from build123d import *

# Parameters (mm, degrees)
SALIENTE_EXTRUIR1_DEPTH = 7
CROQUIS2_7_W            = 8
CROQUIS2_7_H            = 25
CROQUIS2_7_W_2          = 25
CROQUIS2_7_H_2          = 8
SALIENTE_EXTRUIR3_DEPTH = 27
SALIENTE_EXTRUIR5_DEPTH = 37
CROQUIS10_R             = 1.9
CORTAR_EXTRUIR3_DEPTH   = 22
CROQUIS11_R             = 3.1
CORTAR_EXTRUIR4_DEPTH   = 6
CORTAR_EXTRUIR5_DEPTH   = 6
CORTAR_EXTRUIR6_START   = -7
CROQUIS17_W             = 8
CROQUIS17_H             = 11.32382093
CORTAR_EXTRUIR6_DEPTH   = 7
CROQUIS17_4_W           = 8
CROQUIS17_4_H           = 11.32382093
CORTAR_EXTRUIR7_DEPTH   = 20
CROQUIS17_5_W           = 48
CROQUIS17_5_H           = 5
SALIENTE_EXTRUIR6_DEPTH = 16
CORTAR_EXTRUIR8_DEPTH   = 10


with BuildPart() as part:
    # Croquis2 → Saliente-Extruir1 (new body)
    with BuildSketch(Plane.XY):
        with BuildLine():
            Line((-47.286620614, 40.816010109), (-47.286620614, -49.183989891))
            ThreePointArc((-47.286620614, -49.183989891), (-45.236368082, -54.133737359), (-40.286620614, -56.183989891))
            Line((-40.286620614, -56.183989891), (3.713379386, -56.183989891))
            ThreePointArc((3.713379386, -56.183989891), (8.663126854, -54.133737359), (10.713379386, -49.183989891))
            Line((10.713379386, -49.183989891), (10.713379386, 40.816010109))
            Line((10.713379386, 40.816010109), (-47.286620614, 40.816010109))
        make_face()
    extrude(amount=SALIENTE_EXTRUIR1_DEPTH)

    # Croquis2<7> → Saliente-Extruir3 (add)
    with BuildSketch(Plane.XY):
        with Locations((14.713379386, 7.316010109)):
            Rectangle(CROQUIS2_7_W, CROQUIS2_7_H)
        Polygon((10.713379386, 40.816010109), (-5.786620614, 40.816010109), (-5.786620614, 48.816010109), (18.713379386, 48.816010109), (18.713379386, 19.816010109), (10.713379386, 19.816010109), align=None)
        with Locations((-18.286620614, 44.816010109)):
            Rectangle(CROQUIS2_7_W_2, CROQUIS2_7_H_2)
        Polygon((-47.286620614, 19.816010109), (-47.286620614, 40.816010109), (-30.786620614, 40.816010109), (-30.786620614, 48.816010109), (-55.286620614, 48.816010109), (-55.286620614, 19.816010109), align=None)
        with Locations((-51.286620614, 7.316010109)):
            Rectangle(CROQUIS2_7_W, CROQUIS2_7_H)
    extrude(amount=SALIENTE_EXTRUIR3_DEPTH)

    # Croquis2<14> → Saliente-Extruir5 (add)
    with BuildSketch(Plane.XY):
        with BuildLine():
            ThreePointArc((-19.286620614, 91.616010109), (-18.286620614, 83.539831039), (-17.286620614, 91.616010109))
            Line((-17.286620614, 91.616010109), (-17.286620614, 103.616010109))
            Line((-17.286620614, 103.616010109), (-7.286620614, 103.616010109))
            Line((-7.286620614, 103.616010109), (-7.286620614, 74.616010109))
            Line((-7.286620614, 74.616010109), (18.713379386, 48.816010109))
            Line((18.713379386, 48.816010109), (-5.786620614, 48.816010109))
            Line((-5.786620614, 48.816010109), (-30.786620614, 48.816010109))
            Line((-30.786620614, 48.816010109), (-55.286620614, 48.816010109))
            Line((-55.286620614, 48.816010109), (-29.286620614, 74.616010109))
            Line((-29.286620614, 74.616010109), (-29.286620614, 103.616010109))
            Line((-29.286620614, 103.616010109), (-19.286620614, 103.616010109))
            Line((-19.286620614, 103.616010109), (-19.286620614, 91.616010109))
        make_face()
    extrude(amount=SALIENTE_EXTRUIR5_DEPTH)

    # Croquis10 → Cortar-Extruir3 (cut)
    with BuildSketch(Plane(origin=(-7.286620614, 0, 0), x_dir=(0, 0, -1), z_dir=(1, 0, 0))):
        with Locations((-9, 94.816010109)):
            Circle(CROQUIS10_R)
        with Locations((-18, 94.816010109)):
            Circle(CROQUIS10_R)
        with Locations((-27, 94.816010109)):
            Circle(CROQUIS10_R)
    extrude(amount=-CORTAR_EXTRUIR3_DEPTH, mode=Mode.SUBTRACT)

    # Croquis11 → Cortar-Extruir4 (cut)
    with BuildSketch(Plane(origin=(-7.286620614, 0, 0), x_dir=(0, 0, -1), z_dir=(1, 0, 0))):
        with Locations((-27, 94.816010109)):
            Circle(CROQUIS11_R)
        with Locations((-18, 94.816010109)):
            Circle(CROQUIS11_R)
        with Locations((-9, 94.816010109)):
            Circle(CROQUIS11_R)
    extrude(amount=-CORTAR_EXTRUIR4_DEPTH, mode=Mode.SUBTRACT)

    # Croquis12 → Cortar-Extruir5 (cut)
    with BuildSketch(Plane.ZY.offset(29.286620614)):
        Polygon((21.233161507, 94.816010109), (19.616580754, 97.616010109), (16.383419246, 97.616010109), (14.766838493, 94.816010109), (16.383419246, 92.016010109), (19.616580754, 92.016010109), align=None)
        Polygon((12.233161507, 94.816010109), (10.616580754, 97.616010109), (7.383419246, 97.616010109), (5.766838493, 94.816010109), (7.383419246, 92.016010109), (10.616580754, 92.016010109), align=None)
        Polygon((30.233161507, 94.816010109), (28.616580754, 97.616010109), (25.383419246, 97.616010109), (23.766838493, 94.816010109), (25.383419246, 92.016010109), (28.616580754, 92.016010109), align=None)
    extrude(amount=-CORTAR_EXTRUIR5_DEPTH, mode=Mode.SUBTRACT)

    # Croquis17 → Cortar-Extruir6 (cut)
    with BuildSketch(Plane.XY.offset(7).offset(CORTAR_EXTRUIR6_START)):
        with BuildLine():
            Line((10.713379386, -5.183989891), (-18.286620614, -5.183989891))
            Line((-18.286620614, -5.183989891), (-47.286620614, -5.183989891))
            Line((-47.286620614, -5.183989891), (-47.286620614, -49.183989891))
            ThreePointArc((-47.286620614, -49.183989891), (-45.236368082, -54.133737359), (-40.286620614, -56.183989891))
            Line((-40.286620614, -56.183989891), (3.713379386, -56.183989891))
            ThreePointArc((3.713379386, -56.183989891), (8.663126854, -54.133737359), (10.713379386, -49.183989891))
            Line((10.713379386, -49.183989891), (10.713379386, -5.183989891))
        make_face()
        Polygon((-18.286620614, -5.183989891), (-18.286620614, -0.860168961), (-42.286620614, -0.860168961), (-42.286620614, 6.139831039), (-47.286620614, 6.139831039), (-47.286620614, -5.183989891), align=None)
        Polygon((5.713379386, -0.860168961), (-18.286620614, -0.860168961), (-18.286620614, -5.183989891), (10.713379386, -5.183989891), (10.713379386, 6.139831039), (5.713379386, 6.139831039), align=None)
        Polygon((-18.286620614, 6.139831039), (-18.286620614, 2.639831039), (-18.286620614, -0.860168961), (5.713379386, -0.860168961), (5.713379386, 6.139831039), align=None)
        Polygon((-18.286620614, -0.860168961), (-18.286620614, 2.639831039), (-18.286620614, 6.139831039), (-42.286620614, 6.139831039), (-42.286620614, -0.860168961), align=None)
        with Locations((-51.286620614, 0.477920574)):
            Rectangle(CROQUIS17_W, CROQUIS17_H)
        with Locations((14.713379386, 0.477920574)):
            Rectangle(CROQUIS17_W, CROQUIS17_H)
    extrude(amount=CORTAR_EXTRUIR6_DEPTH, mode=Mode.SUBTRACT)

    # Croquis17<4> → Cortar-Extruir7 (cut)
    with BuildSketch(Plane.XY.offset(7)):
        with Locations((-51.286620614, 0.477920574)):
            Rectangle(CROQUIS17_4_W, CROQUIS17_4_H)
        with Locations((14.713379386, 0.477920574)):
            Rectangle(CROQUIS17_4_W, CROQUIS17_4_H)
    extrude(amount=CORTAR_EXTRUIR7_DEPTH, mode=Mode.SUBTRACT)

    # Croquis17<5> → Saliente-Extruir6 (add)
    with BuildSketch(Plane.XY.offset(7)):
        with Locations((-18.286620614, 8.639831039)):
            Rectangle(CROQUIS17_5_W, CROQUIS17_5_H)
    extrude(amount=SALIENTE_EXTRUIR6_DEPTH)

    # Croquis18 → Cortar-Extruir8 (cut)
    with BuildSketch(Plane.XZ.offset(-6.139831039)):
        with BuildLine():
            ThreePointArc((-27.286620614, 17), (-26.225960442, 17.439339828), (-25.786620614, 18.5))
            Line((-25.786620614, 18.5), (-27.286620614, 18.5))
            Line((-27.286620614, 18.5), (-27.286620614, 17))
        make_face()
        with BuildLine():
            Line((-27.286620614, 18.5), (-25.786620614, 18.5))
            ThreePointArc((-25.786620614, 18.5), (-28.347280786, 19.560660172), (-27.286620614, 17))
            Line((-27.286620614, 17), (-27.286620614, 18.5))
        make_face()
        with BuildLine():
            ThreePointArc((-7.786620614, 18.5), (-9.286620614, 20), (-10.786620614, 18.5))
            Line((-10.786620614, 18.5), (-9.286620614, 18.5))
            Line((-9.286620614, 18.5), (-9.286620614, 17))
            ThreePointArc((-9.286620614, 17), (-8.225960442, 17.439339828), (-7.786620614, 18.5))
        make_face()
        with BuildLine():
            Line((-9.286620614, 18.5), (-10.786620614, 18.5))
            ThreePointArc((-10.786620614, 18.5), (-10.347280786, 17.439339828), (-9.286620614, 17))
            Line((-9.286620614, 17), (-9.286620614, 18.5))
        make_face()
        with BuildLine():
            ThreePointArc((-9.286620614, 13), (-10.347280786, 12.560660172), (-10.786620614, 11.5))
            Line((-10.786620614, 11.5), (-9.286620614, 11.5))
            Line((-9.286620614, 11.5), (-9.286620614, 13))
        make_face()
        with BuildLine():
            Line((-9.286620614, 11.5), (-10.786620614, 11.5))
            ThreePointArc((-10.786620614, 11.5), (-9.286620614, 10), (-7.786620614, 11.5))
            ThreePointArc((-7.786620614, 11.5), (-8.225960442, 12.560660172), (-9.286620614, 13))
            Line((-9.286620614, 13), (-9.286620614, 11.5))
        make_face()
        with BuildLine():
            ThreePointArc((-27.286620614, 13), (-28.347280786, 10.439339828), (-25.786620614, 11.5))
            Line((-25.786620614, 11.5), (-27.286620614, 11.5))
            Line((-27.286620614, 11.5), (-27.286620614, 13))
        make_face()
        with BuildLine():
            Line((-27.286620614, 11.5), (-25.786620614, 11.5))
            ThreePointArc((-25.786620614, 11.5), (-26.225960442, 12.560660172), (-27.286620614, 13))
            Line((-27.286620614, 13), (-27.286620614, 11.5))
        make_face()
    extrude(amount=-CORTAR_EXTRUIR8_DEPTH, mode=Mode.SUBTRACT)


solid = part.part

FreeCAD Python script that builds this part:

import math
import FreeCAD as App
import Part
import Sketcher
from FreeCAD import Vector
Q = App.Units.Quantity


def add_polygon(sketch, points):
    """Adds a closed chain of lines whose ends are joined by coincident constraints."""
    first, n = sketch.GeometryCount, len(points)
    for a, b in zip(points, points[1:] + points[:1]):
        sketch.addGeometry(Part.LineSegment(App.Vector(*a, 0), App.Vector(*b, 0)), False)
    for i in range(n):
        sketch.addConstraint(Sketcher.Constraint("Coincident", first + i, 2, first + (i + 1) % n, 1))

doc = App.newDocument("Part")
body = doc.addObject("PartDesign::Body", "Body")

# Sketch on XY plane
sketch1 = body.newObject("Sketcher::SketchObject", "Sketch")
sketch1.AttachmentSupport = (doc.getObject("XY_Plane"), [""])
sketch1.MapMode = "FlatFace"
sketch1.addGeometry(Part.LineSegment(Vector(-47, 41, 0), Vector(-47, -49, 0)), False)
sketch1.addGeometry(Part.ArcOfCircle(Part.Circle(Vector(-40, -49, 0), Vector(0, 0, 1), 7), math.radians(-180), math.radians(-90)), False)
sketch1.addGeometry(Part.LineSegment(Vector(-40, -56, 0), Vector(4, -56, 0)), False)
sketch1.addGeometry(Part.ArcOfCircle(Part.Circle(Vector(4, -49, 0), Vector(0, 0, 1), 7), math.radians(-90), math.radians(0)), False)
sketch1.addGeometry(Part.LineSegment(Vector(11, -49, 0), Vector(11, 41, 0)), False)
sketch1.addGeometry(Part.LineSegment(Vector(11, 41, 0), Vector(-47, 41, 0)), False)
sketch1.addConstraint(Sketcher.Constraint("Tangent", 0, 2, 1, 1))
sketch1.addConstraint(Sketcher.Constraint("Tangent", 1, 2, 2, 1))
sketch1.addConstraint(Sketcher.Constraint("Tangent", 2, 2, 3, 1))
sketch1.addConstraint(Sketcher.Constraint("Tangent", 3, 2, 4, 1))
sketch1.addConstraint(Sketcher.Constraint("Coincident", 4, 2, 5, 1))
sketch1.addConstraint(Sketcher.Constraint("Coincident", 5, 2, 0, 1))
sketch1.addConstraint(Sketcher.Constraint("Vertical", 0))
sketch1.addConstraint(Sketcher.Constraint("Horizontal", 2))
sketch1.addConstraint(Sketcher.Constraint("Vertical", 4))
sketch1.addConstraint(Sketcher.Constraint("Horizontal", 5))
sketch1.addConstraint(Sketcher.Constraint("Equal", 1, 3))
sketch1.addConstraint(Sketcher.Constraint("Radius", 1, Q("7 mm")))
sketch1.addConstraint(Sketcher.Constraint("DistanceX", 2, 1, 2, 2, Q("44 mm")))
sketch1.addConstraint(Sketcher.Constraint("DistanceY", 0, 2, 0, 1, Q("90 mm")))
sketch1.addConstraint(Sketcher.Constraint("DistanceX", 1, 3, -1, 1, Q("40.286621 mm")))
sketch1.addConstraint(Sketcher.Constraint("DistanceY", 1, 3, -1, 1, Q("49.18399 mm")))
pad1 = body.newObject("PartDesign::Pad", "Pad")
pad1.Profile = sketch1
pad1.Length = 7

# Sketch on XY plane
sketch2 = body.newObject("Sketcher::SketchObject", "Sketch001")
sketch2.AttachmentSupport = (doc.getObject("XY_Plane"), [""])
sketch2.MapMode = "FlatFace"
add_polygon(sketch2, [(11, -5), (19, -5), (19, 49), (-55, 49), (-55, -5), (-47, -5), (-47, 41), (11, 41)])  # lines 0-7
sketch2.addConstraint(Sketcher.Constraint("Horizontal", 0))
sketch2.addConstraint(Sketcher.Constraint("Vertical", 1))
sketch2.addConstraint(Sketcher.Constraint("Horizontal", 2))
sketch2.addConstraint(Sketcher.Constraint("Vertical", 3))
sketch2.addConstraint(Sketcher.Constraint("Horizontal", 4))
sketch2.addConstraint(Sketcher.Constraint("Vertical", 5))
sketch2.addConstraint(Sketcher.Constraint("Horizontal", 6))
sketch2.addConstraint(Sketcher.Constraint("Vertical", 7))
sketch2.addConstraint(Sketcher.Constraint("Horizontal", 0, 2, 3, 2))
sketch2.addConstraint(Sketcher.Constraint("Equal", 0, 4))
sketch2.addConstraint(Sketcher.Constraint("DistanceX", 0, 1, 0, 2, Q("8 mm")))
sketch2.addConstraint(Sketcher.Constraint("DistanceX", 2, 2, 2, 1, Q("74 mm")))
sketch2.addConstraint(Sketcher.Constraint("DistanceY", 1, 1, 1, 2, Q("54 mm")))
sketch2.addConstraint(Sketcher.Constraint("DistanceY", 5, 1, 5, 2, Q("46 mm")))
sketch2.addConstraint(Sketcher.Constraint("DistanceX", -1, 1, 0, 2, Q("18.713379 mm")))
sketch2.addConstraint(Sketcher.Constraint("DistanceY", 0, 2, -1, 1, Q("5.18399 mm")))
pad2 = body.newObject("PartDesign::Pad", "Pad001")
pad2.Profile = sketch2
pad2.Length = 27

# Sketch on XY plane
sketch3 = body.newObject("Sketcher::SketchObject", "Sketch002")
sketch3.AttachmentSupport = (doc.getObject("XY_Plane"), [""])
sketch3.MapMode = "FlatFace"
sketch3.addGeometry(Part.ArcOfCircle(Part.Circle(Vector(-18.3, 87.6, 0), Vector(0, 0, 1), 4.1), math.radians(104), math.radians(436)), False)
sketch3.addGeometry(Part.LineSegment(Vector(-19.3, 91.6, 0), Vector(-19.3, 103.6, 0)), False)
sketch3.addGeometry(Part.LineSegment(Vector(-19.3, 103.6, 0), Vector(-29.3, 103.6, 0)), False)
sketch3.addGeometry(Part.LineSegment(Vector(-29.3, 103.6, 0), Vector(-29.3, 74.6, 0)), False)
sketch3.addGeometry(Part.LineSegment(Vector(-29.3, 74.6, 0), Vector(-55.3, 48.8, 0)), False)
sketch3.addGeometry(Part.LineSegment(Vector(-55.3, 48.8, 0), Vector(18.7, 48.8, 0)), False)
sketch3.addGeometry(Part.LineSegment(Vector(18.7, 48.8, 0), Vector(-7.3, 74.6, 0)), False)
sketch3.addGeometry(Part.LineSegment(Vector(-7.3, 74.6, 0), Vector(-7.3, 103.6, 0)), False)
sketch3.addGeometry(Part.LineSegment(Vector(-7.3, 103.6, 0), Vector(-17.3, 103.6, 0)), False)
sketch3.addGeometry(Part.LineSegment(Vector(-17.3, 103.6, 0), Vector(-17.3, 91.6, 0)), False)
sketch3.addConstraint(Sketcher.Constraint("Coincident", 0, 1, 1, 1))
sketch3.addConstraint(Sketcher.Constraint("Coincident", 1, 2, 2, 1))
sketch3.addConstraint(Sketcher.Constraint("Coincident", 2, 2, 3, 1))
sketch3.addConstraint(Sketcher.Constraint("Coincident", 3, 2, 4, 1))
sketch3.addConstraint(Sketcher.Constraint("Coincident", 4, 2, 5, 1))
sketch3.addConstraint(Sketcher.Constraint("Coincident", 5, 2, 6, 1))
sketch3.addConstraint(Sketcher.Constraint("Coincident", 6, 2, 7, 1))
sketch3.addConstraint(Sketcher.Constraint("Coincident", 7, 2, 8, 1))
sketch3.addConstraint(Sketcher.Constraint("Coincident", 8, 2, 9, 1))
sketch3.addConstraint(Sketcher.Constraint("Coincident", 9, 2, 0, 2))
sketch3.addConstraint(Sketcher.Constraint("Vertical", 1))
sketch3.addConstraint(Sketcher.Constraint("Horizontal", 2))
sketch3.addConstraint(Sketcher.Constraint("Vertical", 3))
sketch3.addConstraint(Sketcher.Constraint("Horizontal", 5))
sketch3.addConstraint(Sketcher.Constraint("Vertical", 7))
sketch3.addConstraint(Sketcher.Constraint("Horizontal", 8))
sketch3.addConstraint(Sketcher.Constraint("Vertical", 9))
sketch3.addConstraint(Sketcher.Constraint("Horizontal", 3, 2, 6, 2))
sketch3.addConstraint(Sketcher.Constraint("Horizontal", 2, 2, 7, 2))
sketch3.addConstraint(Sketcher.Constraint("Horizontal", 0, 1, 9, 2))
sketch3.addConstraint(Sketcher.Constraint("Equal", 2, 8))
sketch3.addConstraint(Sketcher.Constraint("Equal", 4, 6))
sketch3.addConstraint(Sketcher.Constraint("Radius", 0, Q("4.1 mm")))
sketch3.addConstraint(Sketcher.Constraint("DistanceX", 2, 2, 2, 1, Q("10 mm")))
sketch3.addConstraint(Sketcher.Constraint("DistanceX", 5, 1, 5, 2, Q("74 mm")))
sketch3.addConstraint(Sketcher.Constraint("DistanceY", 1, 1, 1, 2, Q("12 mm")))
sketch3.addConstraint(Sketcher.Constraint("DistanceY", 3, 2, 3, 1, Q("29 mm")))
sketch3.addConstraint(Sketcher.Constraint("DistanceX", 0, 1, 0, 3, Q("1 mm")))
sketch3.addConstraint(Sketcher.Constraint("DistanceY", 4, 2, 3, 2, Q("25.8 mm")))
sketch3.addConstraint(Sketcher.Constraint("DistanceX", 0, 3, -1, 1, Q("18.286621 mm")))
sketch3.addConstraint(Sketcher.Constraint("DistanceY", -1, 1, 0, 3, Q("87.639831 mm")))
pad3 = body.newObject("PartDesign::Pad", "Pad002")
pad3.Profile = sketch3
pad3.Length = 37

# Sketch on YZ plane
sketch4 = body.newObject("Sketcher::SketchObject", "Sketch003")
sketch4.AttachmentSupport = (doc.getObject("YZ_Plane"), [""])
sketch4.MapMode = "FlatFace"
sketch4.AttachmentOffset = App.Placement(Vector(0, 0, -7.286621), App.Rotation())
sketch4.addGeometry(Part.Circle(Vector(94.8, 9, 0), Vector(0, 0, 1), 1.9), False)
sketch4.addGeometry(Part.Circle(Vector(94.8, 18, 0), Vector(0, 0, 1), 1.9), False)
sketch4.addGeometry(Part.Circle(Vector(94.8, 27, 0), Vector(0, 0, 1), 1.9), False)
sketch4.addConstraint(Sketcher.Constraint("Equal", 0, 1))
sketch4.addConstraint(Sketcher.Constraint("Equal", 1, 2))
sketch4.addConstraint(Sketcher.Constraint("Vertical", 0, 3, 1, 3))
sketch4.addConstraint(Sketcher.Constraint("Vertical", 1, 3, 2, 3))
sketch4.addConstraint(Sketcher.Constraint("Diameter", 0, Q("3.8 mm")))
sketch4.addConstraint(Sketcher.Constraint("DistanceY", -1, 1, 0, 3, Q("9 mm")))
sketch4.addConstraint(Sketcher.Constraint("DistanceY", -1, 1, 1, 3, Q("18 mm")))
sketch4.addConstraint(Sketcher.Constraint("DistanceY", -1, 1, 2, 3, Q("27 mm")))
sketch4.addConstraint(Sketcher.Constraint("DistanceX", -1, 1, 0, 3, Q("94.81601 mm")))
pocket1 = body.newObject("PartDesign::Pocket", "Pocket")
pocket1.Profile = sketch4
pocket1.Length = 22

# Sketch on YZ plane
sketch5 = body.newObject("Sketcher::SketchObject", "Sketch004")
sketch5.AttachmentSupport = (doc.getObject("YZ_Plane"), [""])
sketch5.MapMode = "FlatFace"
sketch5.AttachmentOffset = App.Placement(Vector(0, 0, -7.286621), App.Rotation())
sketch5.addGeometry(Part.Circle(Vector(94.8, 27, 0), Vector(0, 0, 1), 3.1), False)
sketch5.addGeometry(Part.Circle(Vector(94.8, 18, 0), Vector(0, 0, 1), 3.1), False)
sketch5.addGeometry(Part.Circle(Vector(94.8, 9, 0), Vector(0, 0, 1), 3.1), False)
sketch5.addConstraint(Sketcher.Constraint("Equal", 0, 1))
sketch5.addConstraint(Sketcher.Constraint("Equal", 1, 2))
sketch5.addConstraint(Sketcher.Constraint("Vertical", 0, 3, 1, 3))
sketch5.addConstraint(Sketcher.Constraint("Vertical", 1, 3, 2, 3))
sketch5.addConstraint(Sketcher.Constraint("Diameter", 0, Q("6.2 mm")))
sketch5.addConstraint(Sketcher.Constraint("DistanceY", -1, 1, 0, 3, Q("27 mm")))
sketch5.addConstraint(Sketcher.Constraint("DistanceY", -1, 1, 1, 3, Q("18 mm")))
sketch5.addConstraint(Sketcher.Constraint("DistanceY", -1, 1, 2, 3, Q("9 mm")))
sketch5.addConstraint(Sketcher.Constraint("DistanceX", -1, 1, 0, 3, Q("94.81601 mm")))
pocket2 = body.newObject("PartDesign::Pocket", "Pocket001")
pocket2.Profile = sketch5
pocket2.Length = 6

# Sketch on YZ plane
sketch6 = body.newObject("Sketcher::SketchObject", "Sketch005")
sketch6.AttachmentSupport = (doc.getObject("YZ_Plane"), [""])
sketch6.MapMode = "FlatFace"
sketch6.AttachmentOffset = App.Placement(Vector(0, 0, -29.286621), App.Rotation())
add_polygon(sketch6, [(94.8, 21.2), (97.6, 19.6), (97.6, 16.4), (94.8, 14.8), (92, 16.4), (92, 19.6)])  # lines 0-5
add_polygon(sketch6, [(94.8, 12.2), (97.6, 10.6), (97.6, 7.4), (94.8, 5.8), (92, 7.4), (92, 10.6)])  # lines 6-11
add_polygon(sketch6, [(94.8, 30.2), (97.6, 28.6), (97.6, 25.4), (94.8, 23.8), (92, 25.4), (92, 28.6)])  # lines 12-17
sketch6.addConstraint(Sketcher.Constraint("Vertical", 1))
sketch6.addConstraint(Sketcher.Constraint("Vertical", 4))
sketch6.addConstraint(Sketcher.Constraint("Vertical", 7))
sketch6.addConstraint(Sketcher.Constraint("Vertical", 10))
sketch6.addConstraint(Sketcher.Constraint("Vertical", 13))
sketch6.addConstraint(Sketcher.Constraint("Vertical", 16))
sketch6.addConstraint(Sketcher.Constraint("Parallel", 0, 3))
sketch6.addConstraint(Sketcher.Constraint("Parallel", 2, 5))
sketch6.addConstraint(Sketcher.Constraint("Parallel", 3, 6))
sketch6.addConstraint(Sketcher.Constraint("Parallel", 5, 8))
sketch6.addConstraint(Sketcher.Constraint("Parallel", 6, 9))
sketch6.addConstraint(Sketcher.Constraint("Parallel", 8, 11))
sketch6.addConstraint(Sketcher.Constraint("Parallel", 9, 12))
sketch6.addConstraint(Sketcher.Constraint("Parallel", 11, 14))
sketch6.addConstraint(Sketcher.Constraint("Parallel", 12, 15))
sketch6.addConstraint(Sketcher.Constraint("Parallel", 14, 17))
sketch6.addConstraint(Sketcher.Constraint("Horizontal", 1, 2, 3, 2))
sketch6.addConstraint(Sketcher.Constraint("Horizontal", 0, 2, 4, 2))
sketch6.addConstraint(Sketcher.Constraint("Horizontal", 7, 2, 9, 2))
sketch6.addConstraint(Sketcher.Constraint("Horizontal", 6, 2, 10, 2))
sketch6.addConstraint(Sketcher.Constraint("Horizontal", 13, 2, 15, 2))
sketch6.addConstraint(Sketcher.Constraint("Horizontal", 12, 2, 16, 2))
sketch6.addConstraint(Sketcher.Constraint("Vertical", 2, 2, 5, 2))
sketch6.addConstraint(Sketcher.Constraint("Vertical", 1, 2, 6, 2))
sketch6.addConstraint(Sketcher.Constraint("Vertical", 5, 2, 8, 2))
sketch6.addConstraint(Sketcher.Constraint("Vertical", 7, 2, 12, 2))
sketch6.addConstraint(Sketcher.Constraint("Vertical", 11, 2, 14, 2))
sketch6.addConstraint(Sketcher.Constraint("Equal", 4, 7))
sketch6.addConstraint(Sketcher.Constraint("Equal", 10, 13))
sketch6.addConstraint(Sketcher.Constraint("Angle", 0, Q("-30 deg")))
sketch6.addConstraint(Sketcher.Constraint("DistanceY", 6, 2, 0, 2, Q("9 mm")))
sketch6.addConstraint(Sketcher.Constraint("DistanceY", 0, 2, 12, 2, Q("9 mm")))
sketch6.addConstraint(Sketcher.Constraint("DistanceX", 2, 2, 1, 2, Q("2.8 mm")))
sketch6.addConstraint(Sketcher.Constraint("DistanceY", 1, 2, 1, 1, Q("3.233162 mm")))
sketch6.addConstraint(Sketcher.Constraint("DistanceX", -1, 1, 0, 2, Q("97.61601 mm")))
sketch6.addConstraint(Sketcher.Constraint("DistanceY", -1, 1, 0, 2, Q("19.616581 mm")))
pocket3 = body.newObject("PartDesign::Pocket", "Pocket002")
pocket3.Profile = sketch6
pocket3.Length = 6
pocket3.Reversed = True

# Sketch on XY plane
sketch7 = body.newObject("Sketcher::SketchObject", "Sketch006")
sketch7.AttachmentSupport = (doc.getObject("XY_Plane"), [""])
sketch7.MapMode = "FlatFace"
sketch7.addGeometry(Part.LineSegment(Vector(-47, -5, 0), Vector(-47, -49, 0)), False)
sketch7.addGeometry(Part.ArcOfCircle(Part.Circle(Vector(-40, -49, 0), Vector(0, 0, 1), 7), math.radians(-180), math.radians(-90)), False)
sketch7.addGeometry(Part.LineSegment(Vector(-40, -56, 0), Vector(4, -56, 0)), False)
sketch7.addGeometry(Part.ArcOfCircle(Part.Circle(Vector(4, -49, 0), Vector(0, 0, 1), 7), math.radians(-90), math.radians(0)), False)
sketch7.addGeometry(Part.LineSegment(Vector(11, -49, 0), Vector(11, -5, 0)), False)
sketch7.addGeometry(Part.LineSegment(Vector(11, -5, 0), Vector(19, -5, 0)), False)
sketch7.addGeometry(Part.LineSegment(Vector(19, -5, 0), Vector(19, 6, 0)), False)
sketch7.addGeometry(Part.LineSegment(Vector(19, 6, 0), Vector(-55, 6, 0)), False)
sketch7.addGeometry(Part.LineSegment(Vector(-55, 6, 0), Vector(-55, -5, 0)), False)
sketch7.addGeometry(Part.LineSegment(Vector(-55, -5, 0), Vector(-47, -5, 0)), False)
sketch7.addConstraint(Sketcher.Constraint("Tangent", 0, 2, 1, 1))
sketch7.addConstraint(Sketcher.Constraint("Tangent", 1, 2, 2, 1))
sketch7.addConstraint(Sketcher.Constraint("Tangent", 2, 2, 3, 1))
sketch7.addConstraint(Sketcher.Constraint("Tangent", 3, 2, 4, 1))
sketch7.addConstraint(Sketcher.Constraint("Coincident", 4, 2, 5, 1))
sketch7.addConstraint(Sketcher.Constraint("Coincident", 5, 2, 6, 1))
sketch7.addConstraint(Sketcher.Constraint("Coincident", 6, 2, 7, 1))
sketch7.addConstraint(Sketcher.Constraint("Coincident", 7, 2, 8, 1))
sketch7.addConstraint(Sketcher.Constraint("Coincident", 8, 2, 9, 1))
sketch7.addConstraint(Sketcher.Constraint("Coincident", 9, 2, 0, 1))
sketch7.addConstraint(Sketcher.Constraint("Vertical", 0))
sketch7.addConstraint(Sketcher.Constraint("Horizontal", 2))
sketch7.addConstraint(Sketcher.Constraint("Vertical", 4))
sketch7.addConstraint(Sketcher.Constraint("Horizontal", 5))
sketch7.addConstraint(Sketcher.Constraint("Vertical", 6))
sketch7.addConstraint(Sketcher.Constraint("Horizontal", 7))
sketch7.addConstraint(Sketcher.Constraint("Vertical", 8))
sketch7.addConstraint(Sketcher.Constraint("Horizontal", 9))
sketch7.addConstraint(Sketcher.Constraint("Equal", 1, 3))
sketch7.addConstraint(Sketcher.Constraint("Horizontal", 5, 2, 8, 2))
sketch7.addConstraint(Sketcher.Constraint("Equal", 5, 9))
sketch7.addConstraint(Sketcher.Constraint("Equal", 2, 0))
sketch7.addConstraint(Sketcher.Constraint("Radius", 1, Q("7 mm")))
sketch7.addConstraint(Sketcher.Constraint("DistanceX", 2, 1, 2, 2, Q("44 mm")))
sketch7.addConstraint(Sketcher.Constraint("DistanceX", 5, 1, 5, 2, Q("8 mm")))
sketch7.addConstraint(Sketcher.Constraint("DistanceY", 6, 1, 6, 2, Q("11.323821 mm")))
sketch7.addConstraint(Sketcher.Constraint("DistanceX", 1, 3, -1, 1, Q("40.286621 mm")))
sketch7.addConstraint(Sketcher.Constraint("DistanceY", 1, 3, -1, 1, Q("49.18399 mm")))
pocket4 = body.newObject("PartDesign::Pocket", "Pocket003")
pocket4.Profile = sketch7
pocket4.Length = 7
pocket4.Reversed = True

# Sketch on XY plane
sketch8 = body.newObject("Sketcher::SketchObject", "Sketch007")
sketch8.AttachmentSupport = (doc.getObject("XY_Plane"), [""])
sketch8.MapMode = "FlatFace"
sketch8.AttachmentOffset = App.Placement(Vector(0, 0, 7), App.Rotation())
add_polygon(sketch8, [(-55, 6), (-55, -5), (-47, -5), (-47, 6)])  # lines 0-3
add_polygon(sketch8, [(11, 6), (11, -5), (19, -5), (19, 6)])  # lines 4-7
sketch8.addConstraint(Sketcher.Constraint("Vertical", 0))
sketch8.addConstraint(Sketcher.Constraint("Horizontal", 1))
sketch8.addConstraint(Sketcher.Constraint("Vertical", 2))
sketch8.addConstraint(Sketcher.Constraint("Horizontal", 3))
sketch8.addConstraint(Sketcher.Constraint("Vertical", 4))
sketch8.addConstraint(Sketcher.Constraint("Horizontal", 5))
sketch8.addConstraint(Sketcher.Constraint("Vertical", 6))
sketch8.addConstraint(Sketcher.Constraint("Horizontal", 7))
sketch8.addConstraint(Sketcher.Constraint("Horizontal", 1, 2, 4, 2))
sketch8.addConstraint(Sketcher.Constraint("Horizontal", 3, 2, 6, 2))
sketch8.addConstraint(Sketcher.Constraint("Equal", 3, 5))
sketch8.addConstraint(Sketcher.Constraint("DistanceX", 1, 1, 1, 2, Q("8 mm")))
sketch8.addConstraint(Sketcher.Constraint("DistanceX", 1, 2, 4, 2, Q("58 mm")))
sketch8.addConstraint(Sketcher.Constraint("DistanceY", 0, 2, 0, 1, Q("11.323821 mm")))
sketch8.addConstraint(Sketcher.Constraint("DistanceX", 0, 2, -1, 1, Q("55.286621 mm")))
sketch8.addConstraint(Sketcher.Constraint("DistanceY", 0, 2, -1, 1, Q("5.18399 mm")))
pocket5 = body.newObject("PartDesign::Pocket", "Pocket004")
pocket5.Profile = sketch8
pocket5.Length = 20
pocket5.Reversed = True

# Sketch on XY plane
sketch9 = body.newObject("Sketcher::SketchObject", "Sketch008")
sketch9.AttachmentSupport = (doc.getObject("XY_Plane"), [""])
sketch9.MapMode = "FlatFace"
sketch9.AttachmentOffset = App.Placement(Vector(0, 0, 7), App.Rotation())
add_polygon(sketch9, [(-42, 11), (-42, 6), (6, 6), (6, 11)])  # lines 0-3
sketch9.addConstraint(Sketcher.Constraint("Vertical", 0))
sketch9.addConstraint(Sketcher.Constraint("Horizontal", 1))
sketch9.addConstraint(Sketcher.Constraint("Vertical", 2))
sketch9.addConstraint(Sketcher.Constraint("Horizontal", 3))
sketch9.addConstraint(Sketcher.Constraint("DistanceX", 1, 1, 1, 2, Q("48 mm")))
sketch9.addConstraint(Sketcher.Constraint("DistanceY", 0, 2, 0, 1, Q("5 mm")))
sketch9.addConstraint(Sketcher.Constraint("DistanceX", 0, 2, -1, 1, Q("42.286621 mm")))
sketch9.addConstraint(Sketcher.Constraint("DistanceY", -1, 1, 0, 2, Q("6.139831 mm")))
pad4 = body.newObject("PartDesign::Pad", "Pad003")
pad4.Profile = sketch9
pad4.Length = 16

# Sketch on XZ plane
sketch10 = body.newObject("Sketcher::SketchObject", "Sketch009")
sketch10.AttachmentSupport = (doc.getObject("XZ_Plane"), [""])
sketch10.MapMode = "FlatFace"
sketch10.AttachmentOffset = App.Placement(Vector(0, 0, -6.139831), App.Rotation())
sketch10.addGeometry(Part.ArcOfCircle(Part.Circle(Vector(-27.3, 18.5, 0), Vector(0, 0, 1), 1.5), math.radians(-90), math.radians(0)), False)
sketch10.addGeometry(Part.ArcOfCircle(Part.Circle(Vector(-27.3, 18.5, 0), Vector(0, 0, 1), 1.5), math.radians(0), math.radians(270)), False)
sketch10.addGeometry(Part.ArcOfCircle(Part.Circle(Vector(-9.3, 18.5, 0), Vector(0, 0, 1), 1.5), math.radians(0), math.radians(180)), False)
sketch10.addGeometry(Part.ArcOfCircle(Part.Circle(Vector(-9.3, 18.5, 0), Vector(0, 0, 1), 1.5), math.radians(180), math.radians(270)), False)
sketch10.addGeometry(Part.ArcOfCircle(Part.Circle(Vector(-9.3, 18.5, 0), Vector(0, 0, 1), 1.5), math.radians(-90), math.radians(0)), False)
sketch10.addGeometry(Part.ArcOfCircle(Part.Circle(Vector(-9.3, 11.5, 0), Vector(0, 0, 1), 1.5), math.radians(90), math.radians(180)), False)
sketch10.addGeometry(Part.ArcOfCircle(Part.Circle(Vector(-9.3, 11.5, 0), Vector(0, 0, 1), 1.5), math.radians(180), math.radians(360)), False)
sketch10.addGeometry(Part.ArcOfCircle(Part.Circle(Vector(-9.3, 11.5, 0), Vector(0, 0, 1), 1.5), math.radians(0), math.radians(90)), False)
sketch10.addGeometry(Part.ArcOfCircle(Part.Circle(Vector(-27.3, 11.5, 0), Vector(0, 0, 1), 1.5), math.radians(90), math.radians(360)), False)
sketch10.addGeometry(Part.ArcOfCircle(Part.Circle(Vector(-27.3, 11.5, 0), Vector(0, 0, 1), 1.5), math.radians(0), math.radians(90)), False)
sketch10.addConstraint(Sketcher.Constraint("Tangent", 0, 1, 1, 2))
sketch10.addConstraint(Sketcher.Constraint("Coincident", 1, 1, 0, 2))
sketch10.addConstraint(Sketcher.Constraint("Tangent", 2, 2, 3, 1))
sketch10.addConstraint(Sketcher.Constraint("Tangent", 3, 2, 4, 1))
sketch10.addConstraint(Sketcher.Constraint("Tangent", 4, 2, 2, 1))
sketch10.addConstraint(Sketcher.Constraint("Tangent", 5, 2, 6, 1))
sketch10.addConstraint(Sketcher.Constraint("Tangent", 6, 2, 7, 1))
sketch10.addConstraint(Sketcher.Constraint("Tangent", 7, 2, 5, 1))
sketch10.addConstraint(Sketcher.Constraint("Tangent", 8, 1, 9, 2))
sketch10.addConstraint(Sketcher.Constraint("Coincident", 9, 1, 8, 2))
sketch10.addConstraint(Sketcher.Constraint("Equal", 1, 2))
sketch10.addConstraint(Sketcher.Constraint("Equal", 4, 5))
sketch10.addConstraint(Sketcher.Constraint("Equal", 7, 8))
sketch10.addConstraint(Sketcher.Constraint("Horizontal", 1, 3, 2, 3))
sketch10.addConstraint(Sketcher.Constraint("Horizontal", 7, 3, 8, 3))
sketch10.addConstraint(Sketcher.Constraint("Horizontal", 4, 3, 1, 1))
sketch10.addConstraint(Sketcher.Constraint("Horizontal", 1, 1, 2, 2))
sketch10.addConstraint(Sketcher.Constraint("Horizontal", 2, 2, 4, 2))
sketch10.addConstraint(Sketcher.Constraint("Horizontal", 9, 3, 5, 2))
sketch10.addConstraint(Sketcher.Constraint("Horizontal", 5, 2, 6, 2))
sketch10.addConstraint(Sketcher.Constraint("Horizontal", 6, 2, 9, 1))
sketch10.addConstraint(Sketcher.Constraint("Vertical", 4, 3, 5, 3))
sketch10.addConstraint(Sketcher.Constraint("Vertical", 1, 3, 8, 3))
sketch10.addConstraint(Sketcher.Constraint("Vertical", 9, 3, 0, 1))
sketch10.addConstraint(Sketcher.Constraint("Vertical", 7, 3, 3, 2))
sketch10.addConstraint(Sketcher.Constraint("Vertical", 3, 2, 7, 2))
sketch10.addConstraint(Sketcher.Constraint("Vertical", 0, 1, 8, 1))
sketch10.addConstraint(Sketcher.Constraint("Radius", 0, Q("1.5 mm")))
sketch10.addConstraint(Sketcher.Constraint("DistanceY", -1, 1, 0, 1, Q("17 mm")))
sketch10.addConstraint(Sketcher.Constraint("DistanceY", -1, 1, 7, 2, Q("13 mm")))
sketch10.addConstraint(Sketcher.Constraint("DistanceX", 0, 3, 2, 3, Q("18 mm")))
sketch10.addConstraint(Sketcher.Constraint("DistanceX", 0, 3, -1, 1, Q("27.286621 mm")))
pocket6 = body.newObject("PartDesign::Pocket", "Pocket005")
pocket6.Profile = sketch10
pocket6.Length = 10

doc.recompute()
